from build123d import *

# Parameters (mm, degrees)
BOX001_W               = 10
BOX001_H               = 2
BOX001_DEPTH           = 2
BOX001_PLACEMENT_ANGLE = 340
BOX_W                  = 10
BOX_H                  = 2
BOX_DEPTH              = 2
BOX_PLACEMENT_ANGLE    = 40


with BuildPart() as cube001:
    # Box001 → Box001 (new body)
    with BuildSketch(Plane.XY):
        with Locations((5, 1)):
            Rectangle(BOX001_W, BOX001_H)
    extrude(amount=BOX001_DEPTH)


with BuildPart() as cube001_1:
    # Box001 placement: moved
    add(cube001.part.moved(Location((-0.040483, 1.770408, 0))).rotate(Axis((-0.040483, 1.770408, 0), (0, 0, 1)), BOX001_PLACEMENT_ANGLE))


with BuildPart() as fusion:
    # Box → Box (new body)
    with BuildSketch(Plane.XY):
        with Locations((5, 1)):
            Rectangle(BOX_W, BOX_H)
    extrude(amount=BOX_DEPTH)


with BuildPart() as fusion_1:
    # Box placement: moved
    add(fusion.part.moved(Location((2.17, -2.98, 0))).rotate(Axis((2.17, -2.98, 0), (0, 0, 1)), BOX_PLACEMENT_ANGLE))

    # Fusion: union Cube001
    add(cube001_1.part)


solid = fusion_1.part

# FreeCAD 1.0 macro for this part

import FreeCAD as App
import Part
import Sketcher
Q = App.Units.Quantity

doc = App.newDocument("Part")
body = doc.addObject("PartDesign::Body", "Body")

# Sketch on XY plane
sketch1 = body.newObject("Sketcher::SketchObject", "Sketch")
sketch1.AttachmentSupport = (doc.getObject("XY_Plane"), [""])
sketch1.MapMode = "FlatFace"
sketch1.addGeometry([
    Part.LineSegment(App.Vector(0, 2, 0), App.Vector(0, 0, 0)),
    Part.LineSegment(App.Vector(0, 0, 0), App.Vector(10, 0, 0)),
    Part.LineSegment(App.Vector(10, 0, 0), App.Vector(10, 2, 0)),
    Part.LineSegment(App.Vector(10, 2, 0), App.Vector(0, 2, 0)),
], False)
sketch1.addConstraint([
    Sketcher.Constraint("Coincident", 0, 2, 1, 1),
    Sketcher.Constraint("Coincident", 1, 2, 2, 1),
    Sketcher.Constraint("Coincident", 2, 2, 3, 1),
    Sketcher.Constraint("Coincident", 3, 2, 0, 1),
    Sketcher.Constraint("Vertical", 0),
    Sketcher.Constraint("Horizontal", 1),
    Sketcher.Constraint("Vertical", 2),
    Sketcher.Constraint("Horizontal", 3),
    Sketcher.Constraint("Coincident", 0, 2, -1, 1),
    Sketcher.Constraint("DistanceX", 1, 1, 1, 2, Q("10 mm")),
    Sketcher.Constraint("DistanceY", 0, 2, 0, 1, Q("2 mm")),
])
pad1 = body.newObject("PartDesign::Pad", "Pad")
pad1.Profile = sketch1
pad1.Length = 2
body2 = doc.addObject("PartDesign::Body", "Body001")
doc.recompute()

body.Placement = App.Placement(App.Vector(-0.040483, 1.770408, 0), App.Rotation(App.Vector(0, 0, 1), 340))
boolean = body2.newObject("PartDesign::Boolean", "Boolean")
boolean.Type = "Fuse"
boolean.addObjects([body])
body3 = doc.addObject("PartDesign::Body", "Body002")

# Sketch on XY plane
sketch2 = body3.newObject("Sketcher::SketchObject", "Sketch001")
sketch2.AttachmentSupport = (doc.getObject("XY_Plane002"), [""])
sketch2.MapMode = "FlatFace"
sketch2.addGeometry([
    Part.LineSegment(App.Vector(0, 2, 0), App.Vector(0, 0, 0)),
    Part.LineSegment(App.Vector(0, 0, 0), App.Vector(10, 0, 0)),
    Part.LineSegment(App.Vector(10, 0, 0), App.Vector(10, 2, 0)),
    Part.LineSegment(App.Vector(10, 2, 0), App.Vector(0, 2, 0)),
], False)
sketch2.addConstraint([
    Sketcher.Constraint("Coincident", 0, 2, 1, 1),
    Sketcher.Constraint("Coincident", 1, 2, 2, 1),
    Sketcher.Constraint("Coincident", 2, 2, 3, 1),
    Sketcher.Constraint("Coincident", 3, 2, 0, 1),
    Sketcher.Constraint("Vertical", 0),
    Sketcher.Constraint("Horizontal", 1),
    Sketcher.Constraint("Vertical", 2),
    Sketcher.Constraint("Horizontal", 3),
    Sketcher.Constraint("Coincident", 0, 2, -1, 1),
    Sketcher.Constraint("DistanceX", 1, 1, 1, 2, Q("10 mm")),
    Sketcher.Constraint("DistanceY", 0, 2, 0, 1, Q("2 mm")),
])
pad2 = body3.newObject("PartDesign::Pad", "Pad001")
pad2.Profile = sketch2
pad2.Length = 2
body4 = doc.addObject("PartDesign::Body", "Body003")
doc.recompute()

body3.Placement = App.Placement(App.Vector(2.17, -2.98, 0), App.Rotation(App.Vector(0, 0, 1), 40))
boolean2 = body4.newObject("PartDesign::Boolean", "Boolean001")
boolean2.Type = "Fuse"
boolean2.addObjects([body3])
doc.recompute()

boolean3 = body4.newObject("PartDesign::Boolean", "Boolean002")
boolean3.Type = "Fuse"
boolean3.addObjects([body2])

doc.recompute()
